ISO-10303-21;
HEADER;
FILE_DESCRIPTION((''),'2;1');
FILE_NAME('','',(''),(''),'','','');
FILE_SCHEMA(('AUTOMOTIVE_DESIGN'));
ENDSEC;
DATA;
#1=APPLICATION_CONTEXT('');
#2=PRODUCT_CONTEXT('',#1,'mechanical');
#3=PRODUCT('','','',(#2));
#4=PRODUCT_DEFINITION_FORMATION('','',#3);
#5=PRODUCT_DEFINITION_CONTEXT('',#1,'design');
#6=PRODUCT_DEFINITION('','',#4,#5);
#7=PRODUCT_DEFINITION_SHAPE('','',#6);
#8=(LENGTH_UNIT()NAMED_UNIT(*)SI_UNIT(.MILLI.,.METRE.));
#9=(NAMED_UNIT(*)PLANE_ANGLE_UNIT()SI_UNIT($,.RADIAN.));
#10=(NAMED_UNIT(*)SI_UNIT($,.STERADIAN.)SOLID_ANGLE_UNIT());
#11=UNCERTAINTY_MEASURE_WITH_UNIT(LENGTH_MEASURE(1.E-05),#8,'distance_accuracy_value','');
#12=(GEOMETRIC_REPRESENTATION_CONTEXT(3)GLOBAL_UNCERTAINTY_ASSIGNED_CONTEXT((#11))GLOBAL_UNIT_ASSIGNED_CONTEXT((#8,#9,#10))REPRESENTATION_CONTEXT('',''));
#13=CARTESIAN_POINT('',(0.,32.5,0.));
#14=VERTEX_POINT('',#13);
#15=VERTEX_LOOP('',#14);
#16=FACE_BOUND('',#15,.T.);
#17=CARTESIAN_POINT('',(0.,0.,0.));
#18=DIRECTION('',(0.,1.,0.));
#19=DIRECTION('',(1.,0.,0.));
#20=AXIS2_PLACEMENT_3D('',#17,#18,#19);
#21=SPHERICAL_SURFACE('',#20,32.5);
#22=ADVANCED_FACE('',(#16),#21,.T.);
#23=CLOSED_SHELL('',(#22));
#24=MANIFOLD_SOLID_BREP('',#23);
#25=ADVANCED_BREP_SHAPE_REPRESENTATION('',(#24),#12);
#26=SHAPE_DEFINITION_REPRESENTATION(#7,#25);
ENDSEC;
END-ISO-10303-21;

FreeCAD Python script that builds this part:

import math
import FreeCAD as App
import Part
import Sketcher

doc = App.newDocument("Part")
body = doc.addObject("PartDesign::Body", "Body")

# Sketch on XY plane
sketch1 = body.newObject("Sketcher::SketchObject", "Sketch")
sketch1.AttachmentSupport = (doc.getObject("XY_Plane"), [""])
sketch1.MapMode = "FlatFace"
sketch1.addGeometry([
    Part.LineSegment(App.Vector(0, 32, 0), App.Vector(0, -32, 0)),
    Part.ArcOfCircle(Part.Circle(App.Vector(0, 0, 0), App.Vector(0, 0, 1), 32), math.radians(-90), math.radians(90)),
], False)
sketch1.addConstraint([
    Sketcher.Constraint("Coincident", 0, 1, 1, 2),
    Sketcher.Constraint("Coincident", 1, 1, 0, 2),
    Sketcher.Constraint("Vertical", 0),
    Sketcher.Constraint("Coincident", 1, 3, -1, 1),
    Sketcher.Constraint("PointOnObject", 0, 1, -2),
    Sketcher.Constraint("Radius", 1, 32.5),
])
revolution = body.newObject("PartDesign::Revolution", "Revolution")
revolution.Profile = sketch1
revolution.ReferenceAxis = (sketch1, ["V_Axis"])
revolution.Angle = 360

doc.recompute()
